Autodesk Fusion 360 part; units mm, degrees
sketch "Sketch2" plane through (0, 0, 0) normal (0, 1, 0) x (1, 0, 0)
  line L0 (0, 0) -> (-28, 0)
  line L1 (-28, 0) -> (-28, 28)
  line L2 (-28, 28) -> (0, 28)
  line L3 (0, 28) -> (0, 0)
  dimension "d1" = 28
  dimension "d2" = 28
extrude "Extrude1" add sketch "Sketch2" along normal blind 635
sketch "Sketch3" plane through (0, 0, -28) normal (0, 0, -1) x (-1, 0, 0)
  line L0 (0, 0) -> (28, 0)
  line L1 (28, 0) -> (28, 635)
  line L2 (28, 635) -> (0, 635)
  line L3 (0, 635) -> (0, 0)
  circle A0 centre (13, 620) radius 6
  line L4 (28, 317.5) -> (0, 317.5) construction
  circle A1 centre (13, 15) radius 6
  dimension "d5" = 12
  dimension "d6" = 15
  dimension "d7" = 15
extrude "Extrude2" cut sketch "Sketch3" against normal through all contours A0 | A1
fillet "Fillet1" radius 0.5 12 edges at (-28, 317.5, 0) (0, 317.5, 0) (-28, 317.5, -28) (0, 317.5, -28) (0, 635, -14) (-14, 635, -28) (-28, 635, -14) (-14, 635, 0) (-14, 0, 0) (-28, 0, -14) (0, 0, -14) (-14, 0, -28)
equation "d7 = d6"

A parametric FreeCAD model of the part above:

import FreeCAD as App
import Part
import Sketcher


def edges_at(feature, points):
    """Names of the edges that pass closest to the given points."""
    edges = feature.Shape.Edges
    near = lambda p: min(range(len(edges)), key=lambda i: edges[i].distToShape(Part.Vertex(*p))[0])
    return sorted({f"Edge{near(p) + 1}" for p in points})

doc = App.newDocument("Part")
body = doc.addObject("PartDesign::Body", "Body")

sketch1 = body.newObject("Sketcher::SketchObject", "Sketch")
sketch1.AttachmentSupport = (doc.getObject("XZ_Plane"), [""])
sketch1.MapMode = "FlatFace"
sketch1.addGeometry([
    Part.LineSegment(App.Vector(-28, 0, 0), App.Vector(0, 0, 0)),
    Part.LineSegment(App.Vector(0, 0, 0), App.Vector(0, -28, 0)),
    Part.LineSegment(App.Vector(0, -28, 0), App.Vector(-28, -28, 0)),
    Part.LineSegment(App.Vector(-28, -28, 0), App.Vector(-28, 0, 0)),
], False)
sketch1.addConstraint([
    Sketcher.Constraint("Coincident", 0, 2, 1, 1),
    Sketcher.Constraint("Coincident", 1, 2, 2, 1),
    Sketcher.Constraint("Coincident", 2, 2, 3, 1),
    Sketcher.Constraint("Coincident", 3, 2, 0, 1),
    Sketcher.Constraint("Horizontal", 0),
    Sketcher.Constraint("Vertical", 1),
    Sketcher.Constraint("Horizontal", 2),
    Sketcher.Constraint("Vertical", 3),
    Sketcher.Constraint("Coincident", 0, 2, -1, 1),
    Sketcher.Constraint("Equal", 2, 1),
    Sketcher.Constraint("DistanceX", 0, 1, 0, 2, 28.0),
])
pad1 = body.newObject("PartDesign::Pad", "Pad")
pad1.Profile = sketch1
pad1.Length = 635
pad1.Reversed = True

sketch2 = body.newObject("Sketcher::SketchObject", "Sketch001")
sketch2.AttachmentSupport = (doc.getObject("XY_Plane"), [""])
sketch2.MapMode = "FlatFace"
sketch2.AttachmentOffset = App.Placement(App.Vector(0, 0, -28), App.Rotation())
sketch2.addGeometry([
    Part.Circle(App.Vector(-13, 620, 0), App.Vector(0, 0, 1), 6),
    Part.Circle(App.Vector(-13, 15, 0), App.Vector(0, 0, 1), 6),
], False)
sketch2.addConstraint([
    Sketcher.Constraint("Equal", 0, 1),
    Sketcher.Constraint("Vertical", 0, 3, 1, 3),
    Sketcher.Constraint("Diameter", 0, 12.0),
    Sketcher.Constraint("DistanceY", -1, 1, 1, 3, 15.0),
    Sketcher.Constraint("DistanceX", 0, 3, -1, 1, 13.0),
    Sketcher.Constraint("DistanceY", -1, 1, 0, 3, 620.0),
])
pocket1 = body.newObject("PartDesign::Pocket", "Pocket")
pocket1.Profile = sketch2
pocket1.Type = "ThroughAll"
pocket1.Reversed = True
doc.recompute()

fillet = body.newObject("PartDesign::Fillet", "Fillet")
fillet.Base = (pocket1, edges_at(pocket1, [
    (-28, 317.5, 0),
    (0, 317.5, 0),
    (-28, 317.5, -28),
    (0, 317.5, -28),
    (0, 635, -14),
    (-14, 635, -28),
    (-28, 635, -14),
    (-14, 635, 0),
    (-14, 0, 0),
    (-28, 0, -14),
    (0, 0, -14),
    (-14, 0, -28),
]))
fillet.Radius = 0.5

doc.recompute()
